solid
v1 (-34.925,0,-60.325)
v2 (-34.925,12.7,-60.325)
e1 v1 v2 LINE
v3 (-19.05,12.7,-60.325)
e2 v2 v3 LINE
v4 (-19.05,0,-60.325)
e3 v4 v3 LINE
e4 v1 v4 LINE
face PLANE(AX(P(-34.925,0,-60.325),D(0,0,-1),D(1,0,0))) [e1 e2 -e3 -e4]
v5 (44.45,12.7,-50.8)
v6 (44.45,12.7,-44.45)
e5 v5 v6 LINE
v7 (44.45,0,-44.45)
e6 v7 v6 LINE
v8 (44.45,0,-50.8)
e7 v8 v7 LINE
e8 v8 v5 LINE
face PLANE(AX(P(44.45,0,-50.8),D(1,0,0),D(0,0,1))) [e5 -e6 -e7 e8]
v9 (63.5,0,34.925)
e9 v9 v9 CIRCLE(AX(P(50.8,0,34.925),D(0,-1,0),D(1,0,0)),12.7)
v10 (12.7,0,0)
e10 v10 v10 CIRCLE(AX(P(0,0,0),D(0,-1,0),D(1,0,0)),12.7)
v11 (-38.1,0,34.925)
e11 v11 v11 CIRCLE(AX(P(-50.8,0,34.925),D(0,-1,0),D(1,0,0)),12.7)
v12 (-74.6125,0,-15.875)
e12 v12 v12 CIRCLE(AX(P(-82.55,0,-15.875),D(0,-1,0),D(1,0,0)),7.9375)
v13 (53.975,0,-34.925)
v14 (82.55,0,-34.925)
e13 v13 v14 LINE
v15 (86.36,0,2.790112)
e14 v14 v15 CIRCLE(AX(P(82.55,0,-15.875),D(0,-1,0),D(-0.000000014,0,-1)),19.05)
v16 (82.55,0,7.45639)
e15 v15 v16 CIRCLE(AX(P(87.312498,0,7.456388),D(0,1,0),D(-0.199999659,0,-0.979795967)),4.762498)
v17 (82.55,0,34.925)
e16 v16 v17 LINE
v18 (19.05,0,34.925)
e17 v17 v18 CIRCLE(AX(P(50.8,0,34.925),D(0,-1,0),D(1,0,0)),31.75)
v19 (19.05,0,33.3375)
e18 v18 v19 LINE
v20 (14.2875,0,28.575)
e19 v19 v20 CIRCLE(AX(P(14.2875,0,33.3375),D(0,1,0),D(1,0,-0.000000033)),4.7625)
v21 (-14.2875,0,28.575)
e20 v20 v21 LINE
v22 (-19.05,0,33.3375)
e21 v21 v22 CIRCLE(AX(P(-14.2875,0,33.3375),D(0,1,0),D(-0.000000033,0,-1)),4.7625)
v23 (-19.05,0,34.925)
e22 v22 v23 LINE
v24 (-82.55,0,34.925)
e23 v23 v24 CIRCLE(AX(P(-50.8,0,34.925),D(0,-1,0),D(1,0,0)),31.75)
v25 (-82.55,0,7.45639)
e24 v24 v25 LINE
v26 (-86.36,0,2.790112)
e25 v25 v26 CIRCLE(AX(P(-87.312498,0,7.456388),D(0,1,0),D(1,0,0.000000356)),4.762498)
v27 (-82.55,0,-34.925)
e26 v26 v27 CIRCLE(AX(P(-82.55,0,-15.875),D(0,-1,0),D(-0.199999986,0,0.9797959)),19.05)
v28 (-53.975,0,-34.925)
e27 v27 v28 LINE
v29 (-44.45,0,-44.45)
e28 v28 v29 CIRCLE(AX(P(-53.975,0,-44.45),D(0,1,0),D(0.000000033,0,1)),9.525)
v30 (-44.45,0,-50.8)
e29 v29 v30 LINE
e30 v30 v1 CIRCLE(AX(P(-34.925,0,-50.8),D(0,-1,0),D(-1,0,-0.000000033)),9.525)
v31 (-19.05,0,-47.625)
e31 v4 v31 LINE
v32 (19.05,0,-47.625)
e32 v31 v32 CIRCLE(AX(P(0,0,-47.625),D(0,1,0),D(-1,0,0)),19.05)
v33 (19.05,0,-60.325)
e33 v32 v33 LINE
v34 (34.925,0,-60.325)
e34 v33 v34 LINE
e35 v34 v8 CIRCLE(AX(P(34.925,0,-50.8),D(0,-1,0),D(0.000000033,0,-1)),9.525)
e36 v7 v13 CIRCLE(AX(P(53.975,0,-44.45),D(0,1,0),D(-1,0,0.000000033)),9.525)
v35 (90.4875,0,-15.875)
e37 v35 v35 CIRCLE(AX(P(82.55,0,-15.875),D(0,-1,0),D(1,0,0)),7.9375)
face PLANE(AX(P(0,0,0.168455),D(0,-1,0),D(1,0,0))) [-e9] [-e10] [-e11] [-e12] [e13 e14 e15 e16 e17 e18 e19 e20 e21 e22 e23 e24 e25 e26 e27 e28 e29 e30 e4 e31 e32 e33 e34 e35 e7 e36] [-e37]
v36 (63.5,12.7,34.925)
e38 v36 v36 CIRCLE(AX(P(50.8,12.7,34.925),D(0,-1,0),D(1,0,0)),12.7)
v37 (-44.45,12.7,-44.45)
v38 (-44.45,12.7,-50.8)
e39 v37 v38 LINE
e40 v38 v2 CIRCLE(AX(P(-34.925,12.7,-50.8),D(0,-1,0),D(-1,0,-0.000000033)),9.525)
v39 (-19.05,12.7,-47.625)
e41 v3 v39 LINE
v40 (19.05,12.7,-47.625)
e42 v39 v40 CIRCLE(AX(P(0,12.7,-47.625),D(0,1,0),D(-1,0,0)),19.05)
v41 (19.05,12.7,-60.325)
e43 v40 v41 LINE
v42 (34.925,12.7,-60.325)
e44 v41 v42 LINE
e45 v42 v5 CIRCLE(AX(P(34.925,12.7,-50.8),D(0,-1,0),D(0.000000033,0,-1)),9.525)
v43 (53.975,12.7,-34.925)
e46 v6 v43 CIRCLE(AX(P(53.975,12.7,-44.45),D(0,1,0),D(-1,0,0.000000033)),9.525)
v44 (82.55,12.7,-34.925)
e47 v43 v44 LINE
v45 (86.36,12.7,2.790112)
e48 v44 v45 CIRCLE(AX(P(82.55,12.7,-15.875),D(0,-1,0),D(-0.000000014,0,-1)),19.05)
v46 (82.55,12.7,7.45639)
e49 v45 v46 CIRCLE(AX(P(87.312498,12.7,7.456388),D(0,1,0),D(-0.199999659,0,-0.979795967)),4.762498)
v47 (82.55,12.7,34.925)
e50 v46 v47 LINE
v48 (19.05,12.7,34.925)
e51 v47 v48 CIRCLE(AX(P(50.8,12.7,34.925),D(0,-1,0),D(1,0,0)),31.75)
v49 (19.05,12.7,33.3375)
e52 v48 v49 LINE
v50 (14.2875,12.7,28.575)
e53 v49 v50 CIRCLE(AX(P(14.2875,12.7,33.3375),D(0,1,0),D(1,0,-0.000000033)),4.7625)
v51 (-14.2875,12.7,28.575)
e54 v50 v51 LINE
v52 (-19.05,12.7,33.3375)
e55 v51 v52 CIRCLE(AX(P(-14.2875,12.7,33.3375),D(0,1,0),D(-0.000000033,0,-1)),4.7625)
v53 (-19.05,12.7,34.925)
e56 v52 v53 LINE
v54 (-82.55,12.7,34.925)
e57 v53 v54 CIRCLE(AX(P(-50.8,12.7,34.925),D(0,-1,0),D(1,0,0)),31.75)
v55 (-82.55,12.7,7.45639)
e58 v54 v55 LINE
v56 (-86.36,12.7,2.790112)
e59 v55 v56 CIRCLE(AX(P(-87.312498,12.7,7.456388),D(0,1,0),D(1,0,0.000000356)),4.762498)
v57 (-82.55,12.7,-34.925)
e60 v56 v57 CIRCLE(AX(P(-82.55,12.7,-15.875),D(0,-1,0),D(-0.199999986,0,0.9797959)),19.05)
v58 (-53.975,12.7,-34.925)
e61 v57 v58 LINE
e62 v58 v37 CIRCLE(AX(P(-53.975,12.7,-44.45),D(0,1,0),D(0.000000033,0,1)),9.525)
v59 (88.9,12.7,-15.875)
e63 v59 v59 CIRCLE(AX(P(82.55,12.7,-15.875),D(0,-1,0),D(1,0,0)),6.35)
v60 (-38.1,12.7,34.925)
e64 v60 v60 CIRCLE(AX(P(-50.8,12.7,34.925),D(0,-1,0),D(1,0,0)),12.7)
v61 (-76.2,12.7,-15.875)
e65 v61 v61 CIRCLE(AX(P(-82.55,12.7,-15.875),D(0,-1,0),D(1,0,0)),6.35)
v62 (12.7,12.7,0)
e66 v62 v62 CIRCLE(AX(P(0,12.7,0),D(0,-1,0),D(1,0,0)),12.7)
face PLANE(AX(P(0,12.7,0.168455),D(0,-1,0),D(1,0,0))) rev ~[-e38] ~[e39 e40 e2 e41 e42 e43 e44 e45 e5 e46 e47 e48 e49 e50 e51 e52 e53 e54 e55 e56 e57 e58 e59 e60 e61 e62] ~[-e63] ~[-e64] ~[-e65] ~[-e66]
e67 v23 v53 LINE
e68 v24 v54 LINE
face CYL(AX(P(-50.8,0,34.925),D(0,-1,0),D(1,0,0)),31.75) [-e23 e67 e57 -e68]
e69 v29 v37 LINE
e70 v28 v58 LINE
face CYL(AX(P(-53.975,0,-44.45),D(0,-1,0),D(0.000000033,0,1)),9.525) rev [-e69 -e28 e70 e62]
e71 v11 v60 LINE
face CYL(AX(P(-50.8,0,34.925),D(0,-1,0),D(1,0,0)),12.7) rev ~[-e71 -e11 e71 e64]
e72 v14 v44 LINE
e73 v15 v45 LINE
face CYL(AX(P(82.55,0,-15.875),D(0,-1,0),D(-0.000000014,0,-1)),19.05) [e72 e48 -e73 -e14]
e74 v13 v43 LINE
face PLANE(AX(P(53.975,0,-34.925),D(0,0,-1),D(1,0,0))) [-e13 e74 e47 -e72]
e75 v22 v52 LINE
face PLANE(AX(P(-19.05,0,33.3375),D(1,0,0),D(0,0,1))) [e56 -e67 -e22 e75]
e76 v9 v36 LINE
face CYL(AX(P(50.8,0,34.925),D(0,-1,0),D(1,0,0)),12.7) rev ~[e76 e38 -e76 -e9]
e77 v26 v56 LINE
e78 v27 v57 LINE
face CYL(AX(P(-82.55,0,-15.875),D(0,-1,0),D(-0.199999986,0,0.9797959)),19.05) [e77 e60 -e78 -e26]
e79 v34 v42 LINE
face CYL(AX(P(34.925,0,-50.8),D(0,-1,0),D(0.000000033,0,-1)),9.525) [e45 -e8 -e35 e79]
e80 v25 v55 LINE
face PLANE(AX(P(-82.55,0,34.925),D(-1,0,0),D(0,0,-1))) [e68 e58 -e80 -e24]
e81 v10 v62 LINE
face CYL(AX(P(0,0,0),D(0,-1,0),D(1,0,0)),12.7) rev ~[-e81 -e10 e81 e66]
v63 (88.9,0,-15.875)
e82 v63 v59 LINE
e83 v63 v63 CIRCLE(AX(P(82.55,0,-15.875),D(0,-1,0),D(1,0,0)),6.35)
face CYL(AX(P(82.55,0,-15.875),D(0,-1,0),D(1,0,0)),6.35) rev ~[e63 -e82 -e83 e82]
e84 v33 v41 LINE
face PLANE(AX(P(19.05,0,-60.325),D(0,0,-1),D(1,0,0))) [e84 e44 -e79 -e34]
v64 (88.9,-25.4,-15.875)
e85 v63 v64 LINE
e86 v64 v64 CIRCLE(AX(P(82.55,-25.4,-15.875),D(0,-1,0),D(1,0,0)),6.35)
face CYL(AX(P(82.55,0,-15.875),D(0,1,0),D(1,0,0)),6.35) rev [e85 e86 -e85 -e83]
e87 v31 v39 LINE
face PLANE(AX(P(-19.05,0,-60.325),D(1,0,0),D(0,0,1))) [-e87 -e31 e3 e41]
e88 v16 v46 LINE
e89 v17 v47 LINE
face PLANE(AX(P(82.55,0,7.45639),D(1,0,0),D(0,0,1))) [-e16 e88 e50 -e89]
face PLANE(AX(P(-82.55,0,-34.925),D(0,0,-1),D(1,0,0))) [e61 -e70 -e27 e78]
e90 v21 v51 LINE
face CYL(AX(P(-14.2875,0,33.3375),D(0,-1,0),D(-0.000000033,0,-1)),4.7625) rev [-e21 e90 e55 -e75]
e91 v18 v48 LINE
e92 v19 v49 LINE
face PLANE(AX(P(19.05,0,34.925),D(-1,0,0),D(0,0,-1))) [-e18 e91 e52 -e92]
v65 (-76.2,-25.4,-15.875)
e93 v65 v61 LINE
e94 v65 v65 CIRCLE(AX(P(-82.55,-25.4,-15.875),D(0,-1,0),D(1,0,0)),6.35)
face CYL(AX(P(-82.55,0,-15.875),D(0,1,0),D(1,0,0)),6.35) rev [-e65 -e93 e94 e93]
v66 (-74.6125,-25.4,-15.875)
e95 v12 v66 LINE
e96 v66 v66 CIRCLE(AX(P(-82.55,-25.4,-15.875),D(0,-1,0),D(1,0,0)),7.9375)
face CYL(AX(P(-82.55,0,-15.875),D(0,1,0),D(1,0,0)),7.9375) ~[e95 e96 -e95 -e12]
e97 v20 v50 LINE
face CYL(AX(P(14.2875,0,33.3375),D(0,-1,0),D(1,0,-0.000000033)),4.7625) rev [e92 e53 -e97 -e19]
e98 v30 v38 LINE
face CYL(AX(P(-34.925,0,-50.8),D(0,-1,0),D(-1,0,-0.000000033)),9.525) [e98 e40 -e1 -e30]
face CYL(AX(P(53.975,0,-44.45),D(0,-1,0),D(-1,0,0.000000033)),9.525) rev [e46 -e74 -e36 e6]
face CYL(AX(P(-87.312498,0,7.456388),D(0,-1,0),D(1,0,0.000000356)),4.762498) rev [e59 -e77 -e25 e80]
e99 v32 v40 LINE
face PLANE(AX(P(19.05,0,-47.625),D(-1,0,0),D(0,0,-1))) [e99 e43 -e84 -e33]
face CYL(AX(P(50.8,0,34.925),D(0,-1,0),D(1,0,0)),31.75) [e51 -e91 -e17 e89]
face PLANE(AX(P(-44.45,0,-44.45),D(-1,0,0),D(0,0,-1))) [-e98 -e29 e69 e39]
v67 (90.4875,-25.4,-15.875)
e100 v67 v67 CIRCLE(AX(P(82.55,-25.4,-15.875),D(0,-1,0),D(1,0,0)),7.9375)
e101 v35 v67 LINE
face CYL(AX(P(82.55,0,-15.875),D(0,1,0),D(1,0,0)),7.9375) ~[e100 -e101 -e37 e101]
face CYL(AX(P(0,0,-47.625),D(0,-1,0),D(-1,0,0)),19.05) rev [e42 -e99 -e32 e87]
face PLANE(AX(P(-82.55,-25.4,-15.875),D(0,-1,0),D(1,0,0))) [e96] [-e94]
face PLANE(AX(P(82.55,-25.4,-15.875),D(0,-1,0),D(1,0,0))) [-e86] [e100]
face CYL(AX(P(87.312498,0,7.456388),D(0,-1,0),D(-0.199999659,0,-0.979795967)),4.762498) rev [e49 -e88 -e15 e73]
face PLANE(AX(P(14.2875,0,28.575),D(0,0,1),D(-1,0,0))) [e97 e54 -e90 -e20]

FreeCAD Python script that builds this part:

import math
import FreeCAD as App
import Part
import Sketcher

V = App.Vector
Q = App.Units.Quantity

doc = App.newDocument("Part")
body = doc.addObject("PartDesign::Body", "Body")

# Sketch on XZ plane
sketch1 = body.newObject("Sketcher::SketchObject", "Sketch")
sketch1.AttachmentSupport = (doc.getObject("XZ_Plane"), [""])
sketch1.MapMode = "FlatFace"
sketch1.addGeometry([
    Part.LineSegment(V(14.2875, 28.575, 0), V(-14.2875, 28.575, 0)),  # 0
    Part.ArcOfCircle(Part.Circle(V(-14.2875, 33.3375, 0), V(0, 0, 1), 4.7625), math.radians(-179.999998), math.radians(-90.000002)),  # 1
    Part.LineSegment(V(-19.05, 33.3375, 0), V(-19.05, 34.925, 0)),  # 2
    Part.ArcOfCircle(Part.Circle(V(-50.8, 34.925, 0), V(0, 0, 1), 31.75), math.radians(0), math.radians(180)),  # 3
    Part.LineSegment(V(-82.55, 34.925, 0), V(-82.55, 7.45639, 0)),  # 4
    Part.ArcOfCircle(Part.Circle(V(-87.312498, 7.456388, 0), V(0, 0, 1), 4.762498), math.radians(-78.463061), math.radians(0.00002)),  # 5
    Part.ArcOfCircle(Part.Circle(V(-82.55, -15.875, 0), V(0, 0, 1), 19.05), math.radians(101.536958), math.radians(270.000001)),  # 6
    Part.LineSegment(V(-82.55, -34.925, 0), V(-53.975, -34.925, 0)),  # 7
    Part.ArcOfCircle(Part.Circle(V(-53.975, -44.45, 0), V(0, 0, 1), 9.525), math.radians(0.000002), math.radians(89.999998)),  # 8
    Part.LineSegment(V(-44.45, -44.45, 0), V(-44.45, -50.8, 0)),  # 9
    Part.ArcOfCircle(Part.Circle(V(-34.925, -50.8, 0), V(0, 0, 1), 9.525), math.radians(-179.999998), math.radians(-90.000002)),  # 10
    Part.LineSegment(V(-34.925, -60.325, 0), V(-19.05, -60.325, 0)),  # 11
    Part.LineSegment(V(-19.05, -60.325, 0), V(-19.05, -47.625, 0)),  # 12
    Part.ArcOfCircle(Part.Circle(V(0, -47.625, 0), V(0, 0, 1), 19.05), math.radians(0), math.radians(180)),  # 13
    Part.LineSegment(V(19.05, -47.625, 0), V(19.05, -60.325, 0)),  # 14
    Part.LineSegment(V(19.05, -60.325, 0), V(34.925, -60.325, 0)),  # 15
    Part.ArcOfCircle(Part.Circle(V(34.925, -50.8, 0), V(0, 0, 1), 9.525), math.radians(-89.999998), math.radians(-0.000002)),  # 16
    Part.LineSegment(V(44.45, -50.8, 0), V(44.45, -44.45, 0)),  # 17
    Part.ArcOfCircle(Part.Circle(V(53.975, -44.45, 0), V(0, 0, 1), 9.525), math.radians(90.000002), math.radians(179.999998)),  # 18
    Part.LineSegment(V(53.975, -34.925, 0), V(82.55, -34.925, 0)),  # 19
    Part.ArcOfCircle(Part.Circle(V(82.55, -15.875, 0), V(0, 0, 1), 19.05), math.radians(-90.000001), math.radians(78.463042)),  # 20
    Part.ArcOfCircle(Part.Circle(V(87.312498, 7.456388, 0), V(0, 0, 1), 4.762498), math.radians(179.99998), math.radians(258.463061)),  # 21
    Part.LineSegment(V(82.55, 7.45639, 0), V(82.55, 34.925, 0)),  # 22
    Part.ArcOfCircle(Part.Circle(V(50.8, 34.925, 0), V(0, 0, 1), 31.75), math.radians(0), math.radians(180)),  # 23
    Part.LineSegment(V(19.05, 34.925, 0), V(19.05, 33.3375, 0)),  # 24
    Part.ArcOfCircle(Part.Circle(V(14.2875, 33.3375, 0), V(0, 0, 1), 4.7625), math.radians(-89.999998), math.radians(-0.000002)),  # 25
    Part.Circle(V(-82.55, -15.875, 0), V(0, 0, 1), 6.35),  # 26
    Part.Circle(V(82.55, -15.875, 0), V(0, 0, 1), 6.35),  # 27
    Part.Circle(V(0, 0, 0), V(0, 0, 1), 12.7),  # 28
    Part.Circle(V(-50.8, 34.925, 0), V(0, 0, 1), 12.7),  # 29
    Part.Circle(V(50.8, 34.925, 0), V(0, 0, 1), 12.7),  # 30
], False)
sketch1.addConstraint([
    Sketcher.Constraint("Tangent", 0, 2, 1, 2),
    Sketcher.Constraint("Tangent", 1, 1, 2, 1),
    Sketcher.Constraint("Tangent", 2, 2, 3, 1),
    Sketcher.Constraint("Tangent", 3, 2, 4, 1),
    Sketcher.Constraint("Tangent", 4, 2, 5, 2),
    Sketcher.Constraint("Tangent", 5, 1, 6, 1),
    Sketcher.Constraint("Tangent", 6, 2, 7, 1),
    Sketcher.Constraint("Tangent", 7, 2, 8, 2),
    Sketcher.Constraint("Tangent", 8, 1, 9, 1),
    Sketcher.Constraint("Tangent", 9, 2, 10, 1),
    Sketcher.Constraint("Tangent", 10, 2, 11, 1),
    Sketcher.Constraint("Coincident", 11, 2, 12, 1),
    Sketcher.Constraint("Tangent", 12, 2, 13, 2),
    Sketcher.Constraint("Tangent", 13, 1, 14, 1),
    Sketcher.Constraint("Coincident", 14, 2, 15, 1),
    Sketcher.Constraint("Tangent", 15, 2, 16, 1),
    Sketcher.Constraint("Tangent", 16, 2, 17, 1),
    Sketcher.Constraint("Tangent", 17, 2, 18, 2),
    Sketcher.Constraint("Tangent", 18, 1, 19, 1),
    Sketcher.Constraint("Tangent", 19, 2, 20, 1),
    Sketcher.Constraint("Tangent", 20, 2, 21, 2),
    Sketcher.Constraint("Tangent", 21, 1, 22, 1),
    Sketcher.Constraint("Tangent", 22, 2, 23, 1),
    Sketcher.Constraint("Tangent", 23, 2, 24, 1),
    Sketcher.Constraint("Tangent", 24, 2, 25, 2),
    Sketcher.Constraint("Tangent", 25, 1, 0, 1),
    Sketcher.Constraint("Horizontal", 0),
    Sketcher.Constraint("Vertical", 2),
    Sketcher.Constraint("Vertical", 4),
    Sketcher.Constraint("Horizontal", 7),
    Sketcher.Constraint("Vertical", 9),
    Sketcher.Constraint("Horizontal", 11),
    Sketcher.Constraint("Vertical", 12),
    Sketcher.Constraint("Vertical", 14),
    Sketcher.Constraint("Horizontal", 15),
    Sketcher.Constraint("Vertical", 17),
    Sketcher.Constraint("Horizontal", 19),
    Sketcher.Constraint("Vertical", 22),
    Sketcher.Constraint("Vertical", 24),
    Sketcher.Constraint("Coincident", 28, 3, -1, 1),
    Sketcher.Constraint("Coincident", 26, 3, 6, 3),
    Sketcher.Constraint("Coincident", 27, 3, 20, 3),
    Sketcher.Constraint("Coincident", 29, 3, 3, 3),
    Sketcher.Constraint("Coincident", 30, 3, 23, 3),
    Sketcher.Constraint("Equal", 8, 10),
    Sketcher.Constraint("Equal", 6, 13),
    Sketcher.Constraint("Equal", 10, 16),
    Sketcher.Constraint("Equal", 16, 18),
    Sketcher.Constraint("Equal", 13, 20),
    Sketcher.Constraint("Equal", 5, 21),
    Sketcher.Constraint("Equal", 3, 23),
    Sketcher.Constraint("Equal", 1, 25),
    Sketcher.Constraint("Equal", 26, 27),
    Sketcher.Constraint("Equal", 28, 29),
    Sketcher.Constraint("Equal", 29, 30),
    Sketcher.Constraint("Symmetric", 3, 2, 19, 2, -1, 1),
    Sketcher.Constraint("Symmetric", 6, 2, 22, 2, -1, 1),
    Sketcher.Constraint("Symmetric", 10, 3, 16, 3, -2),
    Sketcher.Constraint("Symmetric", 6, 3, 20, 3, -2),
    Sketcher.Constraint("PointOnObject", 13, 3, -2),
    Sketcher.Constraint("Vertical", 2, 2, 11, 2),
    Sketcher.Constraint("Equal", 0, 7),
    Sketcher.Constraint("Diameter", 28, Q("1 in")),
    Sketcher.Constraint("Diameter", 26, Q("0.5 in")),
    Sketcher.Constraint("Radius", 3, Q("1.25 in")),
    Sketcher.Constraint("Radius", 6, Q("0.75 in")),
    Sketcher.Constraint("DistanceY", 12, 1, 12, 2, Q("0.5 in")),
    Sketcher.Constraint("DistanceY", 10, 3, -1, 1, Q("2 in")),
    Sketcher.Constraint("Radius", 1, Q("0.1875 in")),
    Sketcher.Constraint("Radius", 5, Q("0.1874999 in")),
    Sketcher.Constraint("Radius", 8, Q("0.375 in")),
    Sketcher.Constraint("DistanceY", 6, 3, 3, 3, Q("2 in")),
    Sketcher.Constraint("DistanceY", 2, 1, 2, 2, Q("0.0625 in")),
])
pad1 = body.newObject("PartDesign::Pad", "Pad")
pad1.Profile = sketch1
pad1.Length = Q("0.5 in")
pad1.Reversed = True

# Sketch on XZ plane
sketch2 = body.newObject("Sketcher::SketchObject", "Sketch001")
sketch2.AttachmentSupport = (doc.getObject("XZ_Plane"), [""])
sketch2.MapMode = "FlatFace"
sketch2.addGeometry([
    Part.Circle(V(-82.55, -15.875, 0), V(0, 0, 1), 7.9375),
    Part.Circle(V(-82.55, -15.875, 0), V(0, 0, 1), 6.35),
    Part.Circle(V(82.55, -15.875, 0), V(0, 0, 1), 7.9375),
    Part.Circle(V(82.55, -15.875, 0), V(0, 0, 1), 6.35),
], False)
sketch2.addConstraint([
    Sketcher.Constraint("Coincident", 1, 3, 0, 3),
    Sketcher.Constraint("Coincident", 3, 3, 2, 3),
    Sketcher.Constraint("Equal", 0, 2),
    Sketcher.Constraint("Equal", 1, 3),
    Sketcher.Constraint("Symmetric", 0, 3, 2, 3, -2),
    Sketcher.Constraint("Diameter", 1, Q("0.5 in")),
    Sketcher.Constraint("Diameter", 0, Q("0.625 in")),
    Sketcher.Constraint("DistanceX", 0, 3, 2, 3, Q("6.5 in")),
    Sketcher.Constraint("DistanceY", 0, 3, -1, 1, Q("0.625 in")),
])
pad2 = body.newObject("PartDesign::Pad", "Pad001")
pad2.Profile = sketch2
pad2.Length = Q("1 in")

doc.recompute()
